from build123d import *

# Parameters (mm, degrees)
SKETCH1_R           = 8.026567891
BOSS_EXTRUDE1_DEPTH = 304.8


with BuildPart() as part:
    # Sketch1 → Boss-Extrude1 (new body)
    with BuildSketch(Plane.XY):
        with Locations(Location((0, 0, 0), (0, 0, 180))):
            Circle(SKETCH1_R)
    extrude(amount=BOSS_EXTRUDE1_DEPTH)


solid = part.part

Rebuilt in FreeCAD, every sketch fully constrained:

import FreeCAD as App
import Part
import Sketcher

doc = App.newDocument("Part")
params = doc.addObject("Spreadsheet::Sheet", "Params")
for row, (alias, value) in enumerate([
    ("pad1_length", "12 in"),
], start=1):
    params.set(f"A{row}", alias)
    params.set(f"B{row}", "=" + value)
    params.setAlias(f"B{row}", alias)

body = doc.addObject("PartDesign::Body", "Body")

# Sketch on XY plane
sketch1 = doc.addObject("Sketcher::SketchObject", "Sketch")
body.addObject(sketch1)
sketch1.AttachmentSupport = (doc.XY_Plane, [""])
sketch1.MapMode = "FlatFace"
sketch1.addGeometry(Part.Circle(App.Vector(0, 0, 0), App.Vector(0, 0, 1), 8), False)
sketch1.addConstraint([
    Sketcher.Constraint("Coincident", 0, 3, -1, 1),
    Sketcher.Constraint("Diameter", 0, 16.053136),
])
pad1 = doc.addObject("PartDesign::Pad", "Pad")
body.addObject(pad1)
pad1.Profile = sketch1
pad1.setExpression("Length", "Params.pad1_length")

doc.recompute()
